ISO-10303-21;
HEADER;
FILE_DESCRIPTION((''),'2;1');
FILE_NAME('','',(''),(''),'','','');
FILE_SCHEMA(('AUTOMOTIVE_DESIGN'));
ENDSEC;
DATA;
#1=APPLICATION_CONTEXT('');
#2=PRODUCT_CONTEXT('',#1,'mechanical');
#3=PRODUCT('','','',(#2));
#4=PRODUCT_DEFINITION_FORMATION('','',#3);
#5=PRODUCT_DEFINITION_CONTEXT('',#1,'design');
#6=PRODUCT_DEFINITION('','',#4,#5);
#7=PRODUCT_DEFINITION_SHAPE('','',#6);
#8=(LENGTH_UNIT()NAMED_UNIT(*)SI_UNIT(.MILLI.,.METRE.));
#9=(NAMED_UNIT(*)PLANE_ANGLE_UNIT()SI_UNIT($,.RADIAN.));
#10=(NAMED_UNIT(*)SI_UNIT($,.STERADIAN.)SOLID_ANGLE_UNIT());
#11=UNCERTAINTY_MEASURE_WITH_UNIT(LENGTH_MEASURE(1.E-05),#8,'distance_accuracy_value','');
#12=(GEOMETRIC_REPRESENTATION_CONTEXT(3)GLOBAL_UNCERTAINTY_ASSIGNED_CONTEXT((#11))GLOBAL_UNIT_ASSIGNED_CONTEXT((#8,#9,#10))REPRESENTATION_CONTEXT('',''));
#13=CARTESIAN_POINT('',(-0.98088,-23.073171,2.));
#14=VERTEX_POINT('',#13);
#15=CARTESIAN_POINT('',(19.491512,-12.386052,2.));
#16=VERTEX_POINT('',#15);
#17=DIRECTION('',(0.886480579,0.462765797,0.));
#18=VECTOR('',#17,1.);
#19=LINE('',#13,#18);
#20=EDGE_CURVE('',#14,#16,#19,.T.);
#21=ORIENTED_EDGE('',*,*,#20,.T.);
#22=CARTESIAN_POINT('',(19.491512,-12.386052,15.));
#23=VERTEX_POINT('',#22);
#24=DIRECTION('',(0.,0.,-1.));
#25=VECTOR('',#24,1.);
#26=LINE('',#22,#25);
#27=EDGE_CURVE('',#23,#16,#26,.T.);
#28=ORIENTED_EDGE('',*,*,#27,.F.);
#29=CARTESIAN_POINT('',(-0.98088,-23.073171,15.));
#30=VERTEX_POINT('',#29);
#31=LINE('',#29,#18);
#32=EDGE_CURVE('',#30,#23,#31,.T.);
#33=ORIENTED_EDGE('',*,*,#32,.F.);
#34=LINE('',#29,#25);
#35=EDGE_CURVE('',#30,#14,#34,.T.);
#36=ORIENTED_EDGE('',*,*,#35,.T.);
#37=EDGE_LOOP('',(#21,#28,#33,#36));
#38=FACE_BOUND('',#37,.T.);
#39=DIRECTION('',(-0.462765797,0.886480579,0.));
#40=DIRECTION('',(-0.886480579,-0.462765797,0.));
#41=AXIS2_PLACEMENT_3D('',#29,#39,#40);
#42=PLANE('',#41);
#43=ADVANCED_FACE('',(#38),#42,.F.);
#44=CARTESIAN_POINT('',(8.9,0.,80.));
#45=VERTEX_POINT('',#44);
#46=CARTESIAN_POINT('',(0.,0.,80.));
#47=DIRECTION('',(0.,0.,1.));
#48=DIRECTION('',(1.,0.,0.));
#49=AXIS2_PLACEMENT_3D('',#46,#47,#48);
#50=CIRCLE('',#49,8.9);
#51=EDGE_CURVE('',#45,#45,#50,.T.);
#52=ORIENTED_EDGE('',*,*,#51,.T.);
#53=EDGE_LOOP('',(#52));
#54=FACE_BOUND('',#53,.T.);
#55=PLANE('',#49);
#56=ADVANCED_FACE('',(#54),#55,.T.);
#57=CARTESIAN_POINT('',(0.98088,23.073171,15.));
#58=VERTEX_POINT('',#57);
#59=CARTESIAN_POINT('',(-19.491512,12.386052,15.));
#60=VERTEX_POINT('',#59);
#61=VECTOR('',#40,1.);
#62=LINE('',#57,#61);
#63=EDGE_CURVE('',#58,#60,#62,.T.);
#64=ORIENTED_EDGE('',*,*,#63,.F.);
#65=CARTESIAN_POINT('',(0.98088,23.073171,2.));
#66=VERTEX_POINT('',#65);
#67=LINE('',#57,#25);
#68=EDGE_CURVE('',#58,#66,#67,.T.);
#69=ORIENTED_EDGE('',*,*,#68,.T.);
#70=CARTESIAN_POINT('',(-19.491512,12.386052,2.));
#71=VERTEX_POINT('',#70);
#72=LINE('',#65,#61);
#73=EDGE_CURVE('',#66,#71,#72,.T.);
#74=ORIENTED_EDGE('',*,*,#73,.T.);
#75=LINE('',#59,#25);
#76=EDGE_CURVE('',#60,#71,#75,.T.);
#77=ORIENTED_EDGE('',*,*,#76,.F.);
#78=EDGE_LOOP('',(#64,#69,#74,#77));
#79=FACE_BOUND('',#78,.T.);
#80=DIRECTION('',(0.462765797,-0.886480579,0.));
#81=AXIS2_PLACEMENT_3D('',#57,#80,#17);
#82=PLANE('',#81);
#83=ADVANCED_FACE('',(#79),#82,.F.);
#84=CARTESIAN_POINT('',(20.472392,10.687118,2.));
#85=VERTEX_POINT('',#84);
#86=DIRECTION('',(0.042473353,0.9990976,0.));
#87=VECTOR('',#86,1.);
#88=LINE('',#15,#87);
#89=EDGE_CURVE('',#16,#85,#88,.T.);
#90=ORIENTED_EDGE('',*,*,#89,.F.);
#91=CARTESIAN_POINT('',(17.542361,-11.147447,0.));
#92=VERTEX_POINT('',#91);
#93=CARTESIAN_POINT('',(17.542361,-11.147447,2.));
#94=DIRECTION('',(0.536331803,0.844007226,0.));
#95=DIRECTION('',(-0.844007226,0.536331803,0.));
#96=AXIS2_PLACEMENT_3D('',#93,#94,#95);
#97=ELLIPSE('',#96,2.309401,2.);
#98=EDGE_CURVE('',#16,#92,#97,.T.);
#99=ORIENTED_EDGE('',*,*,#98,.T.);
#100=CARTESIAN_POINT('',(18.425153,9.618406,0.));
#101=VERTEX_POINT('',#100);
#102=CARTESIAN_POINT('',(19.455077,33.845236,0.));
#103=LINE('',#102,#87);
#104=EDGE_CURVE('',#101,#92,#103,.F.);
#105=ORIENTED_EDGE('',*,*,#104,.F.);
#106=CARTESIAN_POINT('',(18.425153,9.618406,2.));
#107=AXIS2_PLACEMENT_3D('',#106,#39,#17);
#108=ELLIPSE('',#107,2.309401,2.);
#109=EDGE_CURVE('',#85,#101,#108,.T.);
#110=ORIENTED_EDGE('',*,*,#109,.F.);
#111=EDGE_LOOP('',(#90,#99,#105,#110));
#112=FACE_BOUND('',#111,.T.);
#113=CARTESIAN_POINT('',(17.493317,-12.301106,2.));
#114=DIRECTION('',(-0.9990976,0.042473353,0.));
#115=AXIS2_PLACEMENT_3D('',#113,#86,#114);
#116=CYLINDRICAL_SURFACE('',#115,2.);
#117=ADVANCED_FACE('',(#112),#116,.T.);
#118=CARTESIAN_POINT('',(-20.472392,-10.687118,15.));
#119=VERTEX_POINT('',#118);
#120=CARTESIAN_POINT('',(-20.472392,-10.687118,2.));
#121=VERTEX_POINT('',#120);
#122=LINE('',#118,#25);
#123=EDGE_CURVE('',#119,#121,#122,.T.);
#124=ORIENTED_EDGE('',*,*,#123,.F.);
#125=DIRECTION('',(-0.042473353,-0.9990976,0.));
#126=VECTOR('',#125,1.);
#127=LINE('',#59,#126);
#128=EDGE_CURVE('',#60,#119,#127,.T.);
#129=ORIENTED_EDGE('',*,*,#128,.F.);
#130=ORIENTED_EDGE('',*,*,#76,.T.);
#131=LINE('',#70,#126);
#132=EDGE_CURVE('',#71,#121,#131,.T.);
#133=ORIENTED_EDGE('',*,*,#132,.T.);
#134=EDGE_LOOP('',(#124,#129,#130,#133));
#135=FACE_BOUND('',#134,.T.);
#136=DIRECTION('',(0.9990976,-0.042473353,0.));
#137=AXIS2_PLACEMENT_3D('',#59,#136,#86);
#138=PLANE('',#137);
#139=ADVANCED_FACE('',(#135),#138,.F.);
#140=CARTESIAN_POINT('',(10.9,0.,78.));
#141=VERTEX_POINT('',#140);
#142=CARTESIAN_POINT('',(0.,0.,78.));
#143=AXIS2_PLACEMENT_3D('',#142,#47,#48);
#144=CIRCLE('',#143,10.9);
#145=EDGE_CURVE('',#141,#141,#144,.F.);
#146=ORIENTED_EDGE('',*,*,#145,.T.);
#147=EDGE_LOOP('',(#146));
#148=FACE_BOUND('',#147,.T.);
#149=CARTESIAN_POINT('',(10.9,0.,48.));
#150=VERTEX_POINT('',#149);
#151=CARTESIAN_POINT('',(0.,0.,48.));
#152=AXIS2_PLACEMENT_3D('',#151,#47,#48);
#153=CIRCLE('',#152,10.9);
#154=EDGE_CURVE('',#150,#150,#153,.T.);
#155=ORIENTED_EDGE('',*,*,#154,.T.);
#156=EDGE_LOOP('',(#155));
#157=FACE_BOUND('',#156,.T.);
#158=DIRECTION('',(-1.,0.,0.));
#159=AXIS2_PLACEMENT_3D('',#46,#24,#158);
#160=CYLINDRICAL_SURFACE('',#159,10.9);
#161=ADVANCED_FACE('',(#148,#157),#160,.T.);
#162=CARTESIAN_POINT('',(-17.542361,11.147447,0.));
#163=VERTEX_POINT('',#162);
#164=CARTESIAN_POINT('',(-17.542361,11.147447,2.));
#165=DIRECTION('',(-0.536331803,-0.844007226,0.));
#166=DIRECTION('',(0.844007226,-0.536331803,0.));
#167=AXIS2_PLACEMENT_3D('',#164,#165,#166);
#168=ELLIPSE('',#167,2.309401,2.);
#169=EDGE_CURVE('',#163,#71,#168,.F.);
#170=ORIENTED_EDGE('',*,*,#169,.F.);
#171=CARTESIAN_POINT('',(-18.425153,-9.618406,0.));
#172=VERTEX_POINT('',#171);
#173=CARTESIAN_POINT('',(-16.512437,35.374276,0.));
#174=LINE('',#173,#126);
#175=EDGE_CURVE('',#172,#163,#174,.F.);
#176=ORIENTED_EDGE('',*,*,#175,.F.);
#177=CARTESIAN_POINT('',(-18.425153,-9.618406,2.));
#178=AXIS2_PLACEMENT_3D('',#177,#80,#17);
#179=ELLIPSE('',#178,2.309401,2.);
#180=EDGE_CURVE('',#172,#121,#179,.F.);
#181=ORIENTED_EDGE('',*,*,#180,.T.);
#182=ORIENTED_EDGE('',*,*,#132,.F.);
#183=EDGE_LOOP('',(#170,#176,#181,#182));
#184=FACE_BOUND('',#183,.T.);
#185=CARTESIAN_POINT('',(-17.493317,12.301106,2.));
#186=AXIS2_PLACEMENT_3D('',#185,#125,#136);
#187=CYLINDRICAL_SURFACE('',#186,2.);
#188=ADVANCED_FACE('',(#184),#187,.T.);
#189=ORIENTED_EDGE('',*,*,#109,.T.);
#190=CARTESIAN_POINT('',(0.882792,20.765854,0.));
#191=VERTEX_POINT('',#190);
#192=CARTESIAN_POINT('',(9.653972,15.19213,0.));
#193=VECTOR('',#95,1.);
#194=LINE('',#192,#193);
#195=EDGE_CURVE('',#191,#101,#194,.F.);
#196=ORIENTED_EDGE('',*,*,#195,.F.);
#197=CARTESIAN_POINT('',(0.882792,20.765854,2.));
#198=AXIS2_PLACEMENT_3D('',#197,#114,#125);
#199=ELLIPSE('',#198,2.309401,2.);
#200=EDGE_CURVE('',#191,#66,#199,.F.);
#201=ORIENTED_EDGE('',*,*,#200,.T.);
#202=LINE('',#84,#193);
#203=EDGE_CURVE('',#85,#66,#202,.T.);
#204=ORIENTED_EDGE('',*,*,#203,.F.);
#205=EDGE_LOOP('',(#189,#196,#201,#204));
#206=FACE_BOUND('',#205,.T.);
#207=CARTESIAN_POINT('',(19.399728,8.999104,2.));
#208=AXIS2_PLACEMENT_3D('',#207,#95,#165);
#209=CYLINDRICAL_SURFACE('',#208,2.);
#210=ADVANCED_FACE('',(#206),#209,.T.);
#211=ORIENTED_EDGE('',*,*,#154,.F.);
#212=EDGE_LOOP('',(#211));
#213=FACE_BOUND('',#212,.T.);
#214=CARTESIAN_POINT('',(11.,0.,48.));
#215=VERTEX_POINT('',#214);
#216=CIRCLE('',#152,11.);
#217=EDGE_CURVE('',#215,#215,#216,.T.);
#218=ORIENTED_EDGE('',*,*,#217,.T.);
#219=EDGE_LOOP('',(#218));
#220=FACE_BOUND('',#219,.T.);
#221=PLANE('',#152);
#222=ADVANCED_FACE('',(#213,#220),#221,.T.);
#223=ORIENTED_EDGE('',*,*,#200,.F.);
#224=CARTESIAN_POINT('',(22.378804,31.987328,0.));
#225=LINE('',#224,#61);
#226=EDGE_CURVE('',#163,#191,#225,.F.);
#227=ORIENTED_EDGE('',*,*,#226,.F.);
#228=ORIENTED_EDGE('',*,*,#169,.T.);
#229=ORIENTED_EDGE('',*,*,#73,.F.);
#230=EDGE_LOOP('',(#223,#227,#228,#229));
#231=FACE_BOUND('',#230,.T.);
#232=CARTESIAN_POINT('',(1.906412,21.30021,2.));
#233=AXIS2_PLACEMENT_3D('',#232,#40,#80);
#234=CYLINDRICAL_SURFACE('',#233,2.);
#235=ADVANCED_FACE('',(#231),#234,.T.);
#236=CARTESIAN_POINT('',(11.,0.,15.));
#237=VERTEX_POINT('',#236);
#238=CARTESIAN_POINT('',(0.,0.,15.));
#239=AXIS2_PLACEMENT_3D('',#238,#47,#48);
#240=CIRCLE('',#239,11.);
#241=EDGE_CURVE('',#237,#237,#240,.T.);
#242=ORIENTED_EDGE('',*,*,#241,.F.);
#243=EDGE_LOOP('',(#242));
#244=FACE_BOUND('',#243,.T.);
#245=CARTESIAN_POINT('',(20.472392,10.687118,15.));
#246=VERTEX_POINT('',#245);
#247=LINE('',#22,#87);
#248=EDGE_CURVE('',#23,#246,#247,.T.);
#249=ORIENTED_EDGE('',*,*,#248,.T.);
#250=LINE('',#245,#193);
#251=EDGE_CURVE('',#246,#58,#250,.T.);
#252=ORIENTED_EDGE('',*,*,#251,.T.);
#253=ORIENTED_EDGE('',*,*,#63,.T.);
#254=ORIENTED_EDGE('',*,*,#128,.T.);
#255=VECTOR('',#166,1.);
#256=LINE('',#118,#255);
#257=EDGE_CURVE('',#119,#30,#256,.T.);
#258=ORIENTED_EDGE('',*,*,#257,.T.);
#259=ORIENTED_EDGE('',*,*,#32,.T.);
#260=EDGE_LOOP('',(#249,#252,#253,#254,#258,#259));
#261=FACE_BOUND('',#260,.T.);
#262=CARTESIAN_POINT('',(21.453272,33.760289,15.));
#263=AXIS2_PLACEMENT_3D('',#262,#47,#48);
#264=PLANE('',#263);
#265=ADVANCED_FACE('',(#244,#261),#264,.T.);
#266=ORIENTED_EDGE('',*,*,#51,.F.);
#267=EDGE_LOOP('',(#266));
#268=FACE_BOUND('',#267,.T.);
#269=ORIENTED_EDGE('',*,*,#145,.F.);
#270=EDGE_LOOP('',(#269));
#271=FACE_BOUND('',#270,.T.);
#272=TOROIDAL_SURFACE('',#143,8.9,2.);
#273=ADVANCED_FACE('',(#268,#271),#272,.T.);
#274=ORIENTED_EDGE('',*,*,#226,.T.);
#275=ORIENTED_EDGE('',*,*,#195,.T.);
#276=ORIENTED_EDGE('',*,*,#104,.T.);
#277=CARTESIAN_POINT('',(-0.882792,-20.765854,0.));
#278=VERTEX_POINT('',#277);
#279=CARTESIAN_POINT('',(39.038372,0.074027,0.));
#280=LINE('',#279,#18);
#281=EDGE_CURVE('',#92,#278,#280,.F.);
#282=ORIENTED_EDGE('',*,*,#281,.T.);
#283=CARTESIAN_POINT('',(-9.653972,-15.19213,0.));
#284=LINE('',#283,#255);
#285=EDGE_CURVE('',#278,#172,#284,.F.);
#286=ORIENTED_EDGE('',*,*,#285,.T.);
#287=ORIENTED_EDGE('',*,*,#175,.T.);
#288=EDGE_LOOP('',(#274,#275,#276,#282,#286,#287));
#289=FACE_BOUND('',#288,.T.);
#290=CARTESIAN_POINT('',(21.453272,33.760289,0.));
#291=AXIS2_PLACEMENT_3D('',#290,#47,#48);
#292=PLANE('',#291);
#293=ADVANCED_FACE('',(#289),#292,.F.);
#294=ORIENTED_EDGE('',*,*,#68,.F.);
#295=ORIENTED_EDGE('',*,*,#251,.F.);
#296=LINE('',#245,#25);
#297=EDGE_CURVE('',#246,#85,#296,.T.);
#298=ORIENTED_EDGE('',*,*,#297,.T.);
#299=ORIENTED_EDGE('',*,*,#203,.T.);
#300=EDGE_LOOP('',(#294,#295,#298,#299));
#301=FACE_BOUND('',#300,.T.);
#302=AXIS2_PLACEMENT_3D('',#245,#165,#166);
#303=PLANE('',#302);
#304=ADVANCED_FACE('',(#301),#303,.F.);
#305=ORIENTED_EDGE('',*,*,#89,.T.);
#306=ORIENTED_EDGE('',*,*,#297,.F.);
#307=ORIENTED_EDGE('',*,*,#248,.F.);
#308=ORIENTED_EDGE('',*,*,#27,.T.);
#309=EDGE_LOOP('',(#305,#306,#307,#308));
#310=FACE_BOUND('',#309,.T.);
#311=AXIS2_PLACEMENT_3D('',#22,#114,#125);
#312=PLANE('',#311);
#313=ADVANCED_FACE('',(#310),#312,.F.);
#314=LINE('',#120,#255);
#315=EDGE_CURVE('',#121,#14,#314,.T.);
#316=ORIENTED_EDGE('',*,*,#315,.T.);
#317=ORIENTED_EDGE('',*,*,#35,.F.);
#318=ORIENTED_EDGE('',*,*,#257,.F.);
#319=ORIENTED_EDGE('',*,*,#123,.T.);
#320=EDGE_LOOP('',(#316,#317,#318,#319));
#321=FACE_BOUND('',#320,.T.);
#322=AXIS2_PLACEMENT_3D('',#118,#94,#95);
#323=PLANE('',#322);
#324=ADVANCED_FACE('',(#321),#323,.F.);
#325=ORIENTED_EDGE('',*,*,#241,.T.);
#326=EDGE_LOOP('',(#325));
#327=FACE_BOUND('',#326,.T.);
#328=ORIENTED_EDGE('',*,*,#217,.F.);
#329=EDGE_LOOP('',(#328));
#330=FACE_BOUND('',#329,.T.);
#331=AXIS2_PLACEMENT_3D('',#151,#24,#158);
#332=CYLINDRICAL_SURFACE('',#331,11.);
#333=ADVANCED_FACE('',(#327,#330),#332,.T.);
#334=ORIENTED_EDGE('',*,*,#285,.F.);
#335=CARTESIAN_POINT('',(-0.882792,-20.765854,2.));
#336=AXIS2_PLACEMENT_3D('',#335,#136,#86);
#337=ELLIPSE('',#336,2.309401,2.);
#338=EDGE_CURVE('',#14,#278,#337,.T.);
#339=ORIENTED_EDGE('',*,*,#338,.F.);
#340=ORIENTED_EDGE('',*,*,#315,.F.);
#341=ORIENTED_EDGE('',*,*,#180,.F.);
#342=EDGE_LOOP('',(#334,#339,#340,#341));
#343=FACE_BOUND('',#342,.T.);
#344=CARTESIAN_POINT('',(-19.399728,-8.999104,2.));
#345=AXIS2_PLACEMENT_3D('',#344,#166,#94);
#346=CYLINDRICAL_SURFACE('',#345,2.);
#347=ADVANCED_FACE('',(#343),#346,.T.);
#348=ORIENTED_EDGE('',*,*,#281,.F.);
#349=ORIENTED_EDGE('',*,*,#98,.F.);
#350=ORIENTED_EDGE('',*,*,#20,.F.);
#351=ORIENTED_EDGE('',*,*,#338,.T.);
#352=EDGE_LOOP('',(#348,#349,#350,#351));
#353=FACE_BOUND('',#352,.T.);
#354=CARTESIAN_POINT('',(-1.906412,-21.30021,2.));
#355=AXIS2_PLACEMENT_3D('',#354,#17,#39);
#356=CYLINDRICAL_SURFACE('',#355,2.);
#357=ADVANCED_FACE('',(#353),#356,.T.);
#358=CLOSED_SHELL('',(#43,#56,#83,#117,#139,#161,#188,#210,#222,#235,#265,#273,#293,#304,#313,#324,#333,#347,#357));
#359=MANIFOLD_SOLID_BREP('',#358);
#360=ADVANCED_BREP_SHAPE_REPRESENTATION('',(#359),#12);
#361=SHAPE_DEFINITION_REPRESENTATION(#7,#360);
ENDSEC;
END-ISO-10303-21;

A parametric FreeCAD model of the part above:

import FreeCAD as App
import Part
import Sketcher
from FreeCAD import Vector


def edges_at(feature, points):
    """Names of the edges that pass closest to the given points."""
    edges = feature.Shape.Edges
    near = lambda p: min(range(len(edges)), key=lambda i: edges[i].distToShape(Part.Vertex(*p))[0])
    return sorted({f"Edge{near(p) + 1}" for p in points})

doc = App.newDocument("Part")
body = doc.addObject("PartDesign::Body", "Body")

# Sketch on XY plane
sketch1 = doc.addObject("Sketcher::SketchObject", "Sketch")
body.addObject(sketch1)
sketch1.AttachmentSupport = (doc.XY_Plane, [""])
sketch1.MapMode = "FlatFace"
sketch1.addGeometry([
    Part.LineSegment(Vector(20.472392, 10.687118, 0), Vector(0.98088, 23.073171, 0)),  # 0
    Part.LineSegment(Vector(0.98088, 23.073171, 0), Vector(-19.491512, 12.386052, 0)),  # 1
    Part.LineSegment(Vector(-19.491512, 12.386052, 0), Vector(-20.472392, -10.687118, 0)),  # 2
    Part.LineSegment(Vector(-20.472392, -10.687118, 0), Vector(-0.98088, -23.073171, 0)),  # 3
    Part.LineSegment(Vector(-0.98088, -23.073171, 0), Vector(19.491512, -12.386052, 0)),  # 4
    Part.LineSegment(Vector(19.491512, -12.386052, 0), Vector(20.472392, 10.687118, 0)),  # 5
], False)
sketch1.addConstraint([
    Sketcher.Constraint("Coincident", 0, 2, 1, 1),
    Sketcher.Constraint("Coincident", 1, 2, 2, 1),
    Sketcher.Constraint("Coincident", 2, 2, 3, 1),
    Sketcher.Constraint("Coincident", 3, 2, 4, 1),
    Sketcher.Constraint("Coincident", 4, 2, 5, 1),
    Sketcher.Constraint("Coincident", 5, 2, 0, 1),
    Sketcher.Constraint("Symmetric", 0, 2, 3, 2, -1, 1),
    Sketcher.Constraint("Symmetric", 1, 2, 4, 2, -1, 1),
    Sketcher.Constraint("Symmetric", 2, 2, 5, 2, -1, 1),
    Sketcher.Constraint("Equal", 0, 1),
    Sketcher.Constraint("Equal", 1, 2),
    Sketcher.Constraint("Distance", 0, 23.094011),
    Sketcher.Constraint("DistanceX", -1, 1, 0, 2, 0.98088),
    Sketcher.Constraint("DistanceY", -1, 1, 0, 2, 23.073171),
    Sketcher.Constraint("DistanceX", 1, 2, -1, 1, 19.491512),
])
pad1 = doc.addObject("PartDesign::Pad", "Pad")
body.addObject(pad1)
pad1.Profile = sketch1
pad1.Length = 15

# Sketch on XY plane
sketch2 = doc.addObject("Sketcher::SketchObject", "Sketch001")
body.addObject(sketch2)
sketch2.AttachmentSupport = (doc.XY_Plane, [""])
sketch2.MapMode = "FlatFace"
sketch2.AttachmentOffset = App.Placement(Vector(0, 0, 15), App.Rotation())
sketch2.addGeometry(Part.Circle(Vector(0, 0, 0), Vector(0, 0, 1), 11), False)
sketch2.addConstraint([
    Sketcher.Constraint("Coincident", 0, 3, -1, 1),
    Sketcher.Constraint("Diameter", 0, 22.0),
])
pad2 = doc.addObject("PartDesign::Pad", "Pad001")
body.addObject(pad2)
pad2.Profile = sketch2
pad2.Length = 33
doc.recompute()

fillet = doc.addObject("PartDesign::Fillet", "Fillet")
body.addObject(fillet)
fillet.Base = (pad2, edges_at(pad2, [
    (9.255, -17.73, 0),
    (-10.727, -16.88, 0),
    (-19.982, 0.849, 0),
    (-9.255, 17.73, 0),
    (10.727, 16.88, 0),
    (19.982, -0.849, 0),
]))
fillet.Radius = 2

# Sketch on XY plane
sketch3 = doc.addObject("Sketcher::SketchObject", "Sketch002")
body.addObject(sketch3)
sketch3.AttachmentSupport = (doc.XY_Plane, [""])
sketch3.MapMode = "FlatFace"
sketch3.AttachmentOffset = App.Placement(Vector(0, 0, 48), App.Rotation())
sketch3.addGeometry(Part.Circle(Vector(0, 0, 0), Vector(0, 0, 1), 10.9), False)
sketch3.addConstraint([
    Sketcher.Constraint("Coincident", 0, 3, -1, 1),
    Sketcher.Constraint("Diameter", 0, 21.8),
])
pad3 = doc.addObject("PartDesign::Pad", "Pad002")
body.addObject(pad3)
pad3.Profile = sketch3
pad3.Length = 32
doc.recompute()

fillet2 = doc.addObject("PartDesign::Fillet", "Fillet001")
body.addObject(fillet2)
fillet2.Base = (pad3, edges_at(pad3, [(-10.9, 0, 80)]))
fillet2.Radius = 2

doc.recompute()
